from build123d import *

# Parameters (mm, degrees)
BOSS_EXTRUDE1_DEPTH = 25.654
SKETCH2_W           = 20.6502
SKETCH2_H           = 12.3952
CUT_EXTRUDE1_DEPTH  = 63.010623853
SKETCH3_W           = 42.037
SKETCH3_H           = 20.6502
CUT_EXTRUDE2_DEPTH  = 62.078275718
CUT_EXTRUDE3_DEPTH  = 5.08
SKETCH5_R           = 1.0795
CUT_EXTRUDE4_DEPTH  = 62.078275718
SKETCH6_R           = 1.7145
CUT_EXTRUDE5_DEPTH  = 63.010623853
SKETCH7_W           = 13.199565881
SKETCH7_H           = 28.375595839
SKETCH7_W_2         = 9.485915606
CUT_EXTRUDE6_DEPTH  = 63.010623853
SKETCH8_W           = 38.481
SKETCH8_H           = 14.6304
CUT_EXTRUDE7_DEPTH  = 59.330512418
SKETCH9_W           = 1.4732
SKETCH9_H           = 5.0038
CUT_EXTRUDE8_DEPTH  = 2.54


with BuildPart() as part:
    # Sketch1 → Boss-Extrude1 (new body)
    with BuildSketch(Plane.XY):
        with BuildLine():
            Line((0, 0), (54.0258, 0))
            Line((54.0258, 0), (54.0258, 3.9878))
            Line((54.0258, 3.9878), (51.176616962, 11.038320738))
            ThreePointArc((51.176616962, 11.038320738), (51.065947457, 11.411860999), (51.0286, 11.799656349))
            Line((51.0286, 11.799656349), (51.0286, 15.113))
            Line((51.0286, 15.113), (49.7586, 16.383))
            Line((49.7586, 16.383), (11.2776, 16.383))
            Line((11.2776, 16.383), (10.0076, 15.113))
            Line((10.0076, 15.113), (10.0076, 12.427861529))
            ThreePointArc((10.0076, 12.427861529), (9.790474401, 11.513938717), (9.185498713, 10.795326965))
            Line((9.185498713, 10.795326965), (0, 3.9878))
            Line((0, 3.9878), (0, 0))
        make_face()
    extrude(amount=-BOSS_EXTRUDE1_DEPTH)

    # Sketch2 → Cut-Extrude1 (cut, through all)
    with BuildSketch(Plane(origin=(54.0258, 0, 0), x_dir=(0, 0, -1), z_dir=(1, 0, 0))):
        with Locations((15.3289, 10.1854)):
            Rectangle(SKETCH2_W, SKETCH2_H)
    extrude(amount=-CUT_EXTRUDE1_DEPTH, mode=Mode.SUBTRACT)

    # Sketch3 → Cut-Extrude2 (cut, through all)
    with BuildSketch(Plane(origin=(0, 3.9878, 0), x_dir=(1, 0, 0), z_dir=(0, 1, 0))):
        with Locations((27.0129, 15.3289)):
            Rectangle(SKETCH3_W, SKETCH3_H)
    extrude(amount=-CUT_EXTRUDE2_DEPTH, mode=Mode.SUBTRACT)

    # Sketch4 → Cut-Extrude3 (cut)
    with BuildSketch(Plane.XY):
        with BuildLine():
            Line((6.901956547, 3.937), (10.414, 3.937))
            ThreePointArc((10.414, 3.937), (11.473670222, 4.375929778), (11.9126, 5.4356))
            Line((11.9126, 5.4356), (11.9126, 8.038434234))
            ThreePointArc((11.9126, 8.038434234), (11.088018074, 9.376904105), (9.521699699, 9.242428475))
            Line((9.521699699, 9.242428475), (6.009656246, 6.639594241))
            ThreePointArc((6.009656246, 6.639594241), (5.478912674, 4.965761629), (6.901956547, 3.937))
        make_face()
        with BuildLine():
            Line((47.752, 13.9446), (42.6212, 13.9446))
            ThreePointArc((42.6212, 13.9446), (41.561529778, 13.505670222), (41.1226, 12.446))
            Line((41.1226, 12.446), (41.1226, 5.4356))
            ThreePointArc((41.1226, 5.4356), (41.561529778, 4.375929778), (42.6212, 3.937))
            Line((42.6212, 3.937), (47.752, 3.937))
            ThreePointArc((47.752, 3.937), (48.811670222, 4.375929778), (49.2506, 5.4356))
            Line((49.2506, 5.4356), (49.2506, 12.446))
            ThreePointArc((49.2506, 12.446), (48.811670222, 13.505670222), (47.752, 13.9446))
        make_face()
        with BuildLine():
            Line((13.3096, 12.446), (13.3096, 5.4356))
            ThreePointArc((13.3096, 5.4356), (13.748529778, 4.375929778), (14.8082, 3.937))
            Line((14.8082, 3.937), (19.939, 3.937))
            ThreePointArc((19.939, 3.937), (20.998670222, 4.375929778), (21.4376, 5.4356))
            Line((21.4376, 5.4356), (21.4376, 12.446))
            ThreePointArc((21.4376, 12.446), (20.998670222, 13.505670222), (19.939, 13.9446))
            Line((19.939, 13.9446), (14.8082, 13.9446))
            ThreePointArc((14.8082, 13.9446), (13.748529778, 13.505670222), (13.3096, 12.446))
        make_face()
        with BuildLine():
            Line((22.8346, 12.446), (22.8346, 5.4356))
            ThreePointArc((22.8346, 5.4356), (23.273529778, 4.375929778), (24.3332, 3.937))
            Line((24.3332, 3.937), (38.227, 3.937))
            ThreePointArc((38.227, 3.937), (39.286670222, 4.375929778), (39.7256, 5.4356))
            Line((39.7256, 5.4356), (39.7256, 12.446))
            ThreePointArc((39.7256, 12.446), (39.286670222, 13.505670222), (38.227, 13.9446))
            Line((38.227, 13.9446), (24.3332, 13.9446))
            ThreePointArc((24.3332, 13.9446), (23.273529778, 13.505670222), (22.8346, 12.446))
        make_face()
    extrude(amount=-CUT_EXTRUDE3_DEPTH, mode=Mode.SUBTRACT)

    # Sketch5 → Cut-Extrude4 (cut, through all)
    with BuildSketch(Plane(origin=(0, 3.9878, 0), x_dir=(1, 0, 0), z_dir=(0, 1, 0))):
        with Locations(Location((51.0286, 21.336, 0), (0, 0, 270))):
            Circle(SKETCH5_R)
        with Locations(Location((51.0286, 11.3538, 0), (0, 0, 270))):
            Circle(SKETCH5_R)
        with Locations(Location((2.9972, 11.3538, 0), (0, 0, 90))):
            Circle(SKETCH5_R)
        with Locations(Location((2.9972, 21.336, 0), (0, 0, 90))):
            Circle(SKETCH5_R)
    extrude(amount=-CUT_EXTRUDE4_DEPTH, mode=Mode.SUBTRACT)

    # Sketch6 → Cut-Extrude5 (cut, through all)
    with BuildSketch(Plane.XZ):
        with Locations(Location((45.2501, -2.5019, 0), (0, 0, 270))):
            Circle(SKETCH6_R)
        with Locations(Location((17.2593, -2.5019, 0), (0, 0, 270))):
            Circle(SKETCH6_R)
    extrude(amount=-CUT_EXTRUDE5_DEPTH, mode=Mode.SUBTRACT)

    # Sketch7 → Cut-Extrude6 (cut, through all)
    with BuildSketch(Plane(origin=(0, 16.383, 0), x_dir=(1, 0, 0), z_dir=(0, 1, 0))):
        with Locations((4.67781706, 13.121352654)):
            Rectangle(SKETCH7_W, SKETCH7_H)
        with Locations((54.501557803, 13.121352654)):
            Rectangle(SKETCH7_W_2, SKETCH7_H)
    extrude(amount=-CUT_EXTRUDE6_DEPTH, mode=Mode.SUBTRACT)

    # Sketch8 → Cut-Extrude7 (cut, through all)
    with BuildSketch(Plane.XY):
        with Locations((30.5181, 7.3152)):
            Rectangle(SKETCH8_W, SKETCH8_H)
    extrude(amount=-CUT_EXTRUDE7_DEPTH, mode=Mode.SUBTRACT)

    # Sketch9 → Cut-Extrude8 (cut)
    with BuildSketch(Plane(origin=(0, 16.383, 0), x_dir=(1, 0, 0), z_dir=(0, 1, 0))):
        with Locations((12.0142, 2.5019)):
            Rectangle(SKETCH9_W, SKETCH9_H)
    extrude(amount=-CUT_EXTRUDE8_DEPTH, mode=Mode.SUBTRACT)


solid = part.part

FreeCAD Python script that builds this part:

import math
import FreeCAD as App
import Part
import Sketcher
Q = App.Units.Quantity

doc = App.newDocument("Part")
body = doc.addObject("PartDesign::Body", "Body")

# Sketch on XY plane
sketch1 = body.newObject("Sketcher::SketchObject", "Sketch")
sketch1.AttachmentSupport = (doc.getObject("XY_Plane"), [""])
sketch1.MapMode = "FlatFace"
sketch1.addGeometry(Part.LineSegment(App.Vector(0, 0, 0), App.Vector(54, 0, 0)), False)
sketch1.addGeometry(Part.LineSegment(App.Vector(54, 0, 0), App.Vector(54, 4, 0)), False)
sketch1.addGeometry(Part.LineSegment(App.Vector(54, 4, 0), App.Vector(51.2, 11, 0)), False)
sketch1.addGeometry(Part.ArcOfCircle(Part.Circle(App.Vector(53.1, 11.8, 0), App.Vector(0, 0, 1), 2), math.radians(180), math.radians(202)), False)
sketch1.addGeometry(Part.LineSegment(App.Vector(51, 11.8, 0), App.Vector(51, 15.1, 0)), False)
sketch1.addGeometry(Part.LineSegment(App.Vector(51, 15.1, 0), App.Vector(49.8, 16.4, 0)), False)
sketch1.addGeometry(Part.LineSegment(App.Vector(49.8, 16.4, 0), App.Vector(11.3, 16.4, 0)), False)
sketch1.addGeometry(Part.LineSegment(App.Vector(11.3, 16.4, 0), App.Vector(10, 15.1, 0)), False)
sketch1.addGeometry(Part.LineSegment(App.Vector(10, 15.1, 0), App.Vector(10, 12.4, 0)), False)
sketch1.addGeometry(Part.ArcOfCircle(Part.Circle(App.Vector(8, 12.4, 0), App.Vector(0, 0, 1), 2), math.radians(-53), math.radians(0)), False)
sketch1.addGeometry(Part.LineSegment(App.Vector(9.2, 10.8, 0), App.Vector(0, 4, 0)), False)
sketch1.addGeometry(Part.LineSegment(App.Vector(0, 4, 0), App.Vector(0, 0, 0)), False)
sketch1.addConstraint(Sketcher.Constraint("Coincident", 0, 2, 1, 1))
sketch1.addConstraint(Sketcher.Constraint("Coincident", 1, 2, 2, 1))
sketch1.addConstraint(Sketcher.Constraint("Tangent", 2, 2, 3, 2))
sketch1.addConstraint(Sketcher.Constraint("Tangent", 3, 1, 4, 1))
sketch1.addConstraint(Sketcher.Constraint("Coincident", 4, 2, 5, 1))
sketch1.addConstraint(Sketcher.Constraint("Coincident", 5, 2, 6, 1))
sketch1.addConstraint(Sketcher.Constraint("Coincident", 6, 2, 7, 1))
sketch1.addConstraint(Sketcher.Constraint("Coincident", 7, 2, 8, 1))
sketch1.addConstraint(Sketcher.Constraint("Tangent", 8, 2, 9, 2))
sketch1.addConstraint(Sketcher.Constraint("Tangent", 9, 1, 10, 1))
sketch1.addConstraint(Sketcher.Constraint("Coincident", 10, 2, 11, 1))
sketch1.addConstraint(Sketcher.Constraint("Coincident", 11, 2, 0, 1))
sketch1.addConstraint(Sketcher.Constraint("Horizontal", 0))
sketch1.addConstraint(Sketcher.Constraint("Vertical", 1))
sketch1.addConstraint(Sketcher.Constraint("Vertical", 4))
sketch1.addConstraint(Sketcher.Constraint("Horizontal", 6))
sketch1.addConstraint(Sketcher.Constraint("Vertical", 8))
sketch1.addConstraint(Sketcher.Constraint("Vertical", 11))
sketch1.addConstraint(Sketcher.Constraint("Coincident", 11, 2, -1, 1))
sketch1.addConstraint(Sketcher.Constraint("Equal", 3, 9))
sketch1.addConstraint(Sketcher.Constraint("Perpendicular", 5, 7))
sketch1.addConstraint(Sketcher.Constraint("Horizontal", 4, 2, 7, 2))
sketch1.addConstraint(Sketcher.Constraint("Horizontal", 1, 2, 10, 2))
sketch1.addConstraint(Sketcher.Constraint("Equal", 5, 7))
sketch1.addConstraint(Sketcher.Constraint("Radius", 3, Q("0.08 in")))
sketch1.addConstraint(Sketcher.Constraint("DistanceX", 0, 1, 0, 2, Q("2.127 in")))
sketch1.addConstraint(Sketcher.Constraint("DistanceX", 6, 2, 6, 1, Q("1.515 in")))
sketch1.addConstraint(Sketcher.Constraint("DistanceY", 1, 1, 1, 2, Q("0.157 in")))
sketch1.addConstraint(Sketcher.Constraint("DistanceX", 5, 2, 4, 2, Q("0.05 in")))
sketch1.addConstraint(Sketcher.Constraint("DistanceX", -1, 1, 3, 3, Q("2.089 in")))
sketch1.addConstraint(Sketcher.Constraint("DistanceY", -1, 1, 4, 2, Q("0.595 in")))
sketch1.addConstraint(Sketcher.Constraint("Distance", 10, Q("11.433102 mm")))
sketch1.addConstraint(Sketcher.Constraint("Distance", 2, Q("7.604452 mm")))
pad1 = body.newObject("PartDesign::Pad", "Pad")
pad1.Profile = sketch1
pad1.Length = Q("1.01 in")
pad1.Reversed = True

# Sketch on YZ plane
sketch2 = body.newObject("Sketcher::SketchObject", "Sketch001")
sketch2.AttachmentSupport = (doc.getObject("YZ_Plane"), [""])
sketch2.MapMode = "FlatFace"
sketch2.AttachmentOffset = App.Placement(App.Vector(0, 0, 2.127 * 25.4), App.Rotation())
sketch2.addGeometry(Part.LineSegment(App.Vector(16, -5, 0), App.Vector(4, -5, 0)), False)
sketch2.addGeometry(Part.LineSegment(App.Vector(4, -5, 0), App.Vector(4, -26, 0)), False)
sketch2.addGeometry(Part.LineSegment(App.Vector(4, -26, 0), App.Vector(16, -26, 0)), False)
sketch2.addGeometry(Part.LineSegment(App.Vector(16, -26, 0), App.Vector(16, -5, 0)), False)
sketch2.addConstraint(Sketcher.Constraint("Coincident", 0, 2, 1, 1))
sketch2.addConstraint(Sketcher.Constraint("Coincident", 1, 2, 2, 1))
sketch2.addConstraint(Sketcher.Constraint("Coincident", 2, 2, 3, 1))
sketch2.addConstraint(Sketcher.Constraint("Coincident", 3, 2, 0, 1))
sketch2.addConstraint(Sketcher.Constraint("Horizontal", 0))
sketch2.addConstraint(Sketcher.Constraint("Vertical", 1))
sketch2.addConstraint(Sketcher.Constraint("Horizontal", 2))
sketch2.addConstraint(Sketcher.Constraint("Vertical", 3))
sketch2.addConstraint(Sketcher.Constraint("DistanceX", 0, 2, 0, 1, Q("0.488 in")))
sketch2.addConstraint(Sketcher.Constraint("DistanceY", 1, 2, 1, 1, Q("0.813 in")))
sketch2.addConstraint(Sketcher.Constraint("DistanceY", 1, 2, -1, 1, Q("1.01 in")))
sketch2.addConstraint(Sketcher.Constraint("DistanceX", -1, 1, 0, 2, Q("0.157 in")))
pocket1 = body.newObject("PartDesign::Pocket", "Pocket")
pocket1.Profile = sketch2
pocket1.Type = "ThroughAll"

# Sketch on XZ plane
sketch3 = body.newObject("Sketcher::SketchObject", "Sketch002")
sketch3.AttachmentSupport = (doc.getObject("XZ_Plane"), [""])
sketch3.MapMode = "FlatFace"
sketch3.AttachmentOffset = App.Placement(App.Vector(0, 0, -0.157 * 25.4), App.Rotation())
sketch3.addGeometry(Part.LineSegment(App.Vector(6, -26, 0), App.Vector(6, -5, 0)), False)
sketch3.addGeometry(Part.LineSegment(App.Vector(6, -5, 0), App.Vector(48, -5, 0)), False)
sketch3.addGeometry(Part.LineSegment(App.Vector(48, -5, 0), App.Vector(48, -26, 0)), False)
sketch3.addGeometry(Part.LineSegment(App.Vector(48, -26, 0), App.Vector(6, -26, 0)), False)
sketch3.addConstraint(Sketcher.Constraint("Coincident", 0, 2, 1, 1))
sketch3.addConstraint(Sketcher.Constraint("Coincident", 1, 2, 2, 1))
sketch3.addConstraint(Sketcher.Constraint("Coincident", 2, 2, 3, 1))
sketch3.addConstraint(Sketcher.Constraint("Coincident", 3, 2, 0, 1))
sketch3.addConstraint(Sketcher.Constraint("Vertical", 0))
sketch3.addConstraint(Sketcher.Constraint("Horizontal", 1))
sketch3.addConstraint(Sketcher.Constraint("Vertical", 2))
sketch3.addConstraint(Sketcher.Constraint("Horizontal", 3))
sketch3.addConstraint(Sketcher.Constraint("DistanceX", 1, 1, 1, 2, Q("1.655 in")))
sketch3.addConstraint(Sketcher.Constraint("DistanceY", 0, 1, 0, 2, Q("0.813 in")))
sketch3.addConstraint(Sketcher.Constraint("DistanceY", 2, 2, -1, 1, Q("1.01 in")))
sketch3.addConstraint(Sketcher.Constraint("DistanceX", -1, 1, 0, 2, Q("0.236 in")))
pocket2 = body.newObject("PartDesign::Pocket", "Pocket001")
pocket2.Profile = sketch3
pocket2.Type = "ThroughAll"
pocket2.Reversed = True

# Sketch on XY plane
sketch4 = body.newObject("Sketcher::SketchObject", "Sketch003")
sketch4.AttachmentSupport = (doc.getObject("XY_Plane"), [""])
sketch4.MapMode = "FlatFace"
sketch4.addGeometry(Part.LineSegment(App.Vector(6.9, 3.9, 0), App.Vector(10.4, 3.9, 0)), False)
sketch4.addGeometry(Part.ArcOfCircle(Part.Circle(App.Vector(10.4, 5.4, 0), App.Vector(0, 0, 1), 1.5), math.radians(-90), math.radians(0)), False)
sketch4.addGeometry(Part.LineSegment(App.Vector(11.9, 5.4, 0), App.Vector(11.9, 8, 0)), False)
sketch4.addGeometry(Part.ArcOfCircle(Part.Circle(App.Vector(10.4, 8, 0), App.Vector(0, 0, 1), 1.5), math.radians(0), math.radians(127)), False)
sketch4.addGeometry(Part.LineSegment(App.Vector(9.5, 9.2, 0), App.Vector(6, 6.6, 0)), False)
sketch4.addGeometry(Part.ArcOfCircle(Part.Circle(App.Vector(6.9, 5.4, 0), App.Vector(0, 0, 1), 1.5), math.radians(127), math.radians(270)), False)
sketch4.addGeometry(Part.LineSegment(App.Vector(47.8, 13.9, 0), App.Vector(42.6, 13.9, 0)), False)
sketch4.addGeometry(Part.ArcOfCircle(Part.Circle(App.Vector(42.6, 12.4, 0), App.Vector(0, 0, 1), 1.5), math.radians(90), math.radians(180)), False)
sketch4.addGeometry(Part.LineSegment(App.Vector(41.1, 12.4, 0), App.Vector(41.1, 5.4, 0)), False)
sketch4.addGeometry(Part.ArcOfCircle(Part.Circle(App.Vector(42.6, 5.4, 0), App.Vector(0, 0, 1), 1.5), math.radians(-180), math.radians(-90)), False)
sketch4.addGeometry(Part.LineSegment(App.Vector(42.6, 3.9, 0), App.Vector(47.8, 3.9, 0)), False)
sketch4.addGeometry(Part.ArcOfCircle(Part.Circle(App.Vector(47.8, 5.4, 0), App.Vector(0, 0, 1), 1.5), math.radians(-90), math.radians(0)), False)
sketch4.addGeometry(Part.LineSegment(App.Vector(49.3, 5.4, 0), App.Vector(49.3, 12.4, 0)), False)
sketch4.addGeometry(Part.ArcOfCircle(Part.Circle(App.Vector(47.8, 12.4, 0), App.Vector(0, 0, 1), 1.5), math.radians(0), math.radians(90)), False)
sketch4.addGeometry(Part.LineSegment(App.Vector(13.3, 12.4, 0), App.Vector(13.3, 5.4, 0)), False)
sketch4.addGeometry(Part.ArcOfCircle(Part.Circle(App.Vector(14.8, 5.4, 0), App.Vector(0, 0, 1), 1.5), math.radians(-180), math.radians(-90)), False)
sketch4.addGeometry(Part.LineSegment(App.Vector(14.8, 3.9, 0), App.Vector(19.9, 3.9, 0)), False)
sketch4.addGeometry(Part.ArcOfCircle(Part.Circle(App.Vector(19.9, 5.4, 0), App.Vector(0, 0, 1), 1.5), math.radians(-90), math.radians(0)), False)
sketch4.addGeometry(Part.LineSegment(App.Vector(21.4, 5.4, 0), App.Vector(21.4, 12.4, 0)), False)
sketch4.addGeometry(Part.ArcOfCircle(Part.Circle(App.Vector(19.9, 12.4, 0), App.Vector(0, 0, 1), 1.5), math.radians(0), math.radians(90)), False)
sketch4.addGeometry(Part.LineSegment(App.Vector(19.9, 13.9, 0), App.Vector(14.8, 13.9, 0)), False)
sketch4.addGeometry(Part.ArcOfCircle(Part.Circle(App.Vector(14.8, 12.4, 0), App.Vector(0, 0, 1), 1.5), math.radians(90), math.radians(180)), False)
sketch4.addGeometry(Part.LineSegment(App.Vector(22.8, 12.4, 0), App.Vector(22.8, 5.4, 0)), False)
sketch4.addGeometry(Part.ArcOfCircle(Part.Circle(App.Vector(24.3, 5.4, 0), App.Vector(0, 0, 1), 1.5), math.radians(-180), math.radians(-90)), False)
sketch4.addGeometry(Part.LineSegment(App.Vector(24.3, 3.9, 0), App.Vector(38.2, 3.9, 0)), False)
sketch4.addGeometry(Part.ArcOfCircle(Part.Circle(App.Vector(38.2, 5.4, 0), App.Vector(0, 0, 1), 1.5), math.radians(-90), math.radians(0)), False)
sketch4.addGeometry(Part.LineSegment(App.Vector(39.7, 5.4, 0), App.Vector(39.7, 12.4, 0)), False)
sketch4.addGeometry(Part.ArcOfCircle(Part.Circle(App.Vector(38.2, 12.4, 0), App.Vector(0, 0, 1), 1.5), math.radians(0), math.radians(90)), False)
sketch4.addGeometry(Part.LineSegment(App.Vector(38.2, 13.9, 0), App.Vector(24.3, 13.9, 0)), False)
sketch4.addGeometry(Part.ArcOfCircle(Part.Circle(App.Vector(24.3, 12.4, 0), App.Vector(0, 0, 1), 1.5), math.radians(90), math.radians(180)), False)
sketch4.addConstraint(Sketcher.Constraint("Tangent", 0, 2, 1, 1))
sketch4.addConstraint(Sketcher.Constraint("Tangent", 1, 2, 2, 1))
sketch4.addConstraint(Sketcher.Constraint("Tangent", 2, 2, 3, 1))
sketch4.addConstraint(Sketcher.Constraint("Tangent", 3, 2, 4, 1))
sketch4.addConstraint(Sketcher.Constraint("Tangent", 4, 2, 5, 1))
sketch4.addConstraint(Sketcher.Constraint("Tangent", 5, 2, 0, 1))
sketch4.addConstraint(Sketcher.Constraint("Tangent", 6, 2, 7, 1))
sketch4.addConstraint(Sketcher.Constraint("Tangent", 7, 2, 8, 1))
sketch4.addConstraint(Sketcher.Constraint("Tangent", 8, 2, 9, 1))
sketch4.addConstraint(Sketcher.Constraint("Tangent", 9, 2, 10, 1))
sketch4.addConstraint(Sketcher.Constraint("Tangent", 10, 2, 11, 1))
sketch4.addConstraint(Sketcher.Constraint("Tangent", 11, 2, 12, 1))
sketch4.addConstraint(Sketcher.Constraint("Tangent", 12, 2, 13, 1))
sketch4.addConstraint(Sketcher.Constraint("Tangent", 13, 2, 6, 1))
sketch4.addConstraint(Sketcher.Constraint("Tangent", 14, 2, 15, 1))
sketch4.addConstraint(Sketcher.Constraint("Tangent", 15, 2, 16, 1))
sketch4.addConstraint(Sketcher.Constraint("Tangent", 16, 2, 17, 1))
sketch4.addConstraint(Sketcher.Constraint("Tangent", 17, 2, 18, 1))
sketch4.addConstraint(Sketcher.Constraint("Tangent", 18, 2, 19, 1))
sketch4.addConstraint(Sketcher.Constraint("Tangent", 19, 2, 20, 1))
sketch4.addConstraint(Sketcher.Constraint("Tangent", 20, 2, 21, 1))
sketch4.addConstraint(Sketcher.Constraint("Tangent", 21, 2, 14, 1))
sketch4.addConstraint(Sketcher.Constraint("Tangent", 22, 2, 23, 1))
sketch4.addConstraint(Sketcher.Constraint("Tangent", 23, 2, 24, 1))
sketch4.addConstraint(Sketcher.Constraint("Tangent", 24, 2, 25, 1))
sketch4.addConstraint(Sketcher.Constraint("Tangent", 25, 2, 26, 1))
sketch4.addConstraint(Sketcher.Constraint("Tangent", 26, 2, 27, 1))
sketch4.addConstraint(Sketcher.Constraint("Tangent", 27, 2, 28, 1))
sketch4.addConstraint(Sketcher.Constraint("Tangent", 28, 2, 29, 1))
sketch4.addConstraint(Sketcher.Constraint("Tangent", 29, 2, 22, 1))
sketch4.addConstraint(Sketcher.Constraint("Horizontal", 0))
sketch4.addConstraint(Sketcher.Constraint("Vertical", 2))
sketch4.addConstraint(Sketcher.Constraint("Horizontal", 6))
sketch4.addConstraint(Sketcher.Constraint("Vertical", 8))
sketch4.addConstraint(Sketcher.Constraint("Horizontal", 10))
sketch4.addConstraint(Sketcher.Constraint("Vertical", 12))
sketch4.addConstraint(Sketcher.Constraint("Vertical", 14))
sketch4.addConstraint(Sketcher.Constraint("Horizontal", 16))
sketch4.addConstraint(Sketcher.Constraint("Vertical", 18))
sketch4.addConstraint(Sketcher.Constraint("Horizontal", 20))
sketch4.addConstraint(Sketcher.Constraint("Vertical", 22))
sketch4.addConstraint(Sketcher.Constraint("Horizontal", 24))
sketch4.addConstraint(Sketcher.Constraint("Vertical", 26))
sketch4.addConstraint(Sketcher.Constraint("Horizontal", 28))
sketch4.addConstraint(Sketcher.Constraint("Equal", 1, 3))
sketch4.addConstraint(Sketcher.Constraint("Equal", 3, 5))
sketch4.addConstraint(Sketcher.Constraint("Equal", 5, 7))
sketch4.addConstraint(Sketcher.Constraint("Equal", 7, 9))
sketch4.addConstraint(Sketcher.Constraint("Equal", 9, 11))
sketch4.addConstraint(Sketcher.Constraint("Equal", 11, 13))
sketch4.addConstraint(Sketcher.Constraint("Equal", 13, 15))
sketch4.addConstraint(Sketcher.Constraint("Equal", 15, 17))
sketch4.addConstraint(Sketcher.Constraint("Equal", 17, 19))
sketch4.addConstraint(Sketcher.Constraint("Equal", 19, 21))
sketch4.addConstraint(Sketcher.Constraint("Equal", 21, 23))
sketch4.addConstraint(Sketcher.Constraint("Equal", 23, 25))
sketch4.addConstraint(Sketcher.Constraint("Equal", 25, 27))
sketch4.addConstraint(Sketcher.Constraint("Equal", 27, 29))
sketch4.addConstraint(Sketcher.Constraint("Horizontal", 5, 3, 9, 3))
sketch4.addConstraint(Sketcher.Constraint("Horizontal", 11, 3, 15, 3))
sketch4.addConstraint(Sketcher.Constraint("Horizontal", 13, 3, 19, 3))
sketch4.addConstraint(Sketcher.Constraint("Horizontal", 17, 3, 23, 3))
sketch4.addConstraint(Sketcher.Constraint("Horizontal", 21, 3, 27, 3))
sketch4.addConstraint(Sketcher.Constraint("Equal", 10, 16))
sketch4.addConstraint(Sketcher.Constraint("Radius", 1, Q("0.059 in")))
sketch4.addConstraint(Sketcher.Constraint("DistanceX", 6, 2, 6, 1, Q("0.202 in")))
sketch4.addConstraint(Sketcher.Constraint("DistanceX", 24, 1, 24, 2, Q("0.547 in")))
sketch4.addConstraint(Sketcher.Constraint("DistanceY", 8, 2, 8, 1, Q("0.276 in")))
sketch4.addConstraint(Sketcher.Constraint("DistanceX", -1, 1, 1, 3, Q("0.41 in")))
sketch4.addConstraint(Sketcher.Constraint("DistanceY", -1, 1, 7, 3, Q("0.49 in")))
sketch4.addConstraint(Sketcher.Constraint("DistanceX", -1, 1, 11, 3, Q("1.88 in")))
sketch4.addConstraint(Sketcher.Constraint("DistanceX", -1, 1, 15, 3, Q("0.583 in")))
sketch4.addConstraint(Sketcher.Constraint("DistanceX", -1, 1, 23, 3, Q("0.958 in")))
sketch4.addConstraint(Sketcher.Constraint("DistanceX", -1, 1, 3, 2, Q("9.5217 mm")))
sketch4.addConstraint(Sketcher.Constraint("DistanceX", 0, 1, 0, 2, Q("3.512043 mm")))
pocket3 = body.newObject("PartDesign::Pocket", "Pocket002")
pocket3.Profile = sketch4
pocket3.Length = Q("0.2 in")

# Sketch on XZ plane
sketch5 = body.newObject("Sketcher::SketchObject", "Sketch004")
sketch5.AttachmentSupport = (doc.getObject("XZ_Plane"), [""])
sketch5.MapMode = "FlatFace"
sketch5.AttachmentOffset = App.Placement(App.Vector(0, 0, -0.157 * 25.4), App.Rotation())
sketch5.addGeometry(Part.Circle(App.Vector(51, -21.3, 0), App.Vector(0, 0, 1), 1.1), False)
sketch5.addGeometry(Part.Circle(App.Vector(51, -11.4, 0), App.Vector(0, 0, 1), 1.1), False)
sketch5.addGeometry(Part.Circle(App.Vector(3, -11.4, 0), App.Vector(0, 0, 1), 1.1), False)
sketch5.addGeometry(Part.Circle(App.Vector(3, -21.3, 0), App.Vector(0, 0, 1), 1.1), False)
sketch5.addConstraint(Sketcher.Constraint("Equal", 0, 1))
sketch5.addConstraint(Sketcher.Constraint("Equal", 1, 2))
sketch5.addConstraint(Sketcher.Constraint("Equal", 2, 3))
sketch5.addConstraint(Sketcher.Constraint("Horizontal", 1, 3, 2, 3))
sketch5.addConstraint(Sketcher.Constraint("Horizontal", 0, 3, 3, 3))
sketch5.addConstraint(Sketcher.Constraint("Vertical", 0, 3, 1, 3))
sketch5.addConstraint(Sketcher.Constraint("Vertical", 2, 3, 3, 3))
sketch5.addConstraint(Sketcher.Constraint("Diameter", 0, Q("0.085 in")))
sketch5.addConstraint(Sketcher.Constraint("DistanceY", 0, 3, -1, 1, Q("0.84 in")))
sketch5.addConstraint(Sketcher.Constraint("DistanceX", -1, 1, 0, 3, Q("2.009 in")))
sketch5.addConstraint(Sketcher.Constraint("DistanceY", 1, 3, -1, 1, Q("0.447 in")))
sketch5.addConstraint(Sketcher.Constraint("DistanceX", -1, 1, 2, 3, Q("0.118 in")))
pocket4 = body.newObject("PartDesign::Pocket", "Pocket003")
pocket4.Profile = sketch5
pocket4.Type = "ThroughAll"
pocket4.Reversed = True

# Sketch on XZ plane
sketch6 = body.newObject("Sketcher::SketchObject", "Sketch005")
sketch6.AttachmentSupport = (doc.getObject("XZ_Plane"), [""])
sketch6.MapMode = "FlatFace"
sketch6.addGeometry(Part.Circle(App.Vector(45.3, -2.5, 0), App.Vector(0, 0, 1), 1.7), False)
sketch6.addGeometry(Part.Circle(App.Vector(17.3, -2.5, 0), App.Vector(0, 0, 1), 1.7), False)
sketch6.addConstraint(Sketcher.Constraint("Equal", 0, 1))
sketch6.addConstraint(Sketcher.Constraint("Horizontal", 0, 3, 1, 3))
sketch6.addConstraint(Sketcher.Constraint("Diameter", 0, Q("0.135 in")))
sketch6.addConstraint(Sketcher.Constraint("DistanceX", 1, 3, 0, 3, Q("1.102 in")))
sketch6.addConstraint(Sketcher.Constraint("DistanceX", -1, 1, 0, 3, Q("1.7815 in")))
sketch6.addConstraint(Sketcher.Constraint("DistanceY", 0, 3, -1, 1, Q("0.0985 in")))
pocket5 = body.newObject("PartDesign::Pocket", "Pocket004")
pocket5.Profile = sketch6
pocket5.Type = "ThroughAll"

# Sketch on XZ plane
sketch7 = body.newObject("Sketcher::SketchObject", "Sketch006")
sketch7.AttachmentSupport = (doc.getObject("XZ_Plane"), [""])
sketch7.MapMode = "FlatFace"
sketch7.AttachmentOffset = App.Placement(App.Vector(0, 0, -0.645 * 25.4), App.Rotation())
sketch7.addGeometry(Part.LineSegment(App.Vector(-2, -27, 0), App.Vector(-2, 1, 0)), False)
sketch7.addGeometry(Part.LineSegment(App.Vector(-2, 1, 0), App.Vector(11, 1, 0)), False)
sketch7.addGeometry(Part.LineSegment(App.Vector(11, 1, 0), App.Vector(11, -27, 0)), False)
sketch7.addGeometry(Part.LineSegment(App.Vector(11, -27, 0), App.Vector(-2, -27, 0)), False)
sketch7.addGeometry(Part.LineSegment(App.Vector(50, -27, 0), App.Vector(50, 1, 0)), False)
sketch7.addGeometry(Part.LineSegment(App.Vector(50, 1, 0), App.Vector(59, 1, 0)), False)
sketch7.addGeometry(Part.LineSegment(App.Vector(59, 1, 0), App.Vector(59, -27, 0)), False)
sketch7.addGeometry(Part.LineSegment(App.Vector(59, -27, 0), App.Vector(50, -27, 0)), False)
sketch7.addConstraint(Sketcher.Constraint("Coincident", 0, 2, 1, 1))
sketch7.addConstraint(Sketcher.Constraint("Coincident", 1, 2, 2, 1))
sketch7.addConstraint(Sketcher.Constraint("Coincident", 2, 2, 3, 1))
sketch7.addConstraint(Sketcher.Constraint("Coincident", 3, 2, 0, 1))
sketch7.addConstraint(Sketcher.Constraint("Coincident", 4, 2, 5, 1))
sketch7.addConstraint(Sketcher.Constraint("Coincident", 5, 2, 6, 1))
sketch7.addConstraint(Sketcher.Constraint("Coincident", 6, 2, 7, 1))
sketch7.addConstraint(Sketcher.Constraint("Coincident", 7, 2, 4, 1))
sketch7.addConstraint(Sketcher.Constraint("Vertical", 0))
sketch7.addConstraint(Sketcher.Constraint("Horizontal", 1))
sketch7.addConstraint(Sketcher.Constraint("Vertical", 2))
sketch7.addConstraint(Sketcher.Constraint("Horizontal", 3))
sketch7.addConstraint(Sketcher.Constraint("Vertical", 4))
sketch7.addConstraint(Sketcher.Constraint("Horizontal", 5))
sketch7.addConstraint(Sketcher.Constraint("Vertical", 6))
sketch7.addConstraint(Sketcher.Constraint("Horizontal", 7))
sketch7.addConstraint(Sketcher.Constraint("Horizontal", 1, 2, 4, 2))
sketch7.addConstraint(Sketcher.Constraint("Horizontal", 3, 2, 6, 2))
sketch7.addConstraint(Sketcher.Constraint("DistanceX", -1, 1, 1, 2, Q("0.444 in")))
sketch7.addConstraint(Sketcher.Constraint("DistanceX", -1, 1, 4, 2, Q("1.959 in")))
sketch7.addConstraint(Sketcher.Constraint("DistanceX", 1, 1, 1, 2, Q("13.199566 mm")))
sketch7.addConstraint(Sketcher.Constraint("DistanceX", 5, 1, 5, 2, Q("9.485916 mm")))
sketch7.addConstraint(Sketcher.Constraint("DistanceY", 0, 1, 0, 2, Q("28.375596 mm")))
sketch7.addConstraint(Sketcher.Constraint("DistanceY", 2, 2, -1, 1, Q("27.309151 mm")))
pocket6 = body.newObject("PartDesign::Pocket", "Pocket005")
pocket6.Profile = sketch7
pocket6.Type = "ThroughAll"
pocket6.Reversed = True

# Sketch on XY plane
sketch8 = body.newObject("Sketcher::SketchObject", "Sketch007")
sketch8.AttachmentSupport = (doc.getObject("XY_Plane"), [""])
sketch8.MapMode = "FlatFace"
sketch8.addGeometry(Part.LineSegment(App.Vector(11, 15, 0), App.Vector(11, 0, 0)), False)
sketch8.addGeometry(Part.LineSegment(App.Vector(11, 0, 0), App.Vector(50, 0, 0)), False)
sketch8.addGeometry(Part.LineSegment(App.Vector(50, 0, 0), App.Vector(50, 15, 0)), False)
sketch8.addGeometry(Part.LineSegment(App.Vector(50, 15, 0), App.Vector(11, 15, 0)), False)
sketch8.addConstraint(Sketcher.Constraint("Coincident", 0, 2, 1, 1))
sketch8.addConstraint(Sketcher.Constraint("Coincident", 1, 2, 2, 1))
sketch8.addConstraint(Sketcher.Constraint("Coincident", 2, 2, 3, 1))
sketch8.addConstraint(Sketcher.Constraint("Coincident", 3, 2, 0, 1))
sketch8.addConstraint(Sketcher.Constraint("Vertical", 0))
sketch8.addConstraint(Sketcher.Constraint("Horizontal", 1))
sketch8.addConstraint(Sketcher.Constraint("Vertical", 2))
sketch8.addConstraint(Sketcher.Constraint("Horizontal", 3))
sketch8.addConstraint(Sketcher.Constraint("PointOnObject", 0, 2, -1))
sketch8.addConstraint(Sketcher.Constraint("DistanceX", 1, 1, 1, 2, Q("1.515 in")))
sketch8.addConstraint(Sketcher.Constraint("DistanceY", 0, 2, 0, 1, Q("0.576 in")))
sketch8.addConstraint(Sketcher.Constraint("DistanceX", -1, 1, 0, 2, Q("0.444 in")))
pocket7 = body.newObject("PartDesign::Pocket", "Pocket006")
pocket7.Profile = sketch8
pocket7.Type = "ThroughAll"

# Sketch on XZ plane
sketch9 = body.newObject("Sketcher::SketchObject", "Sketch008")
sketch9.AttachmentSupport = (doc.getObject("XZ_Plane"), [""])
sketch9.MapMode = "FlatFace"
sketch9.AttachmentOffset = App.Placement(App.Vector(0, 0, -0.645 * 25.4), App.Rotation())
sketch9.addGeometry(Part.LineSegment(App.Vector(11.3, -5, 0), App.Vector(11.3, 0, 0)), False)
sketch9.addGeometry(Part.LineSegment(App.Vector(11.3, 0, 0), App.Vector(12.8, 0, 0)), False)
sketch9.addGeometry(Part.LineSegment(App.Vector(12.8, 0, 0), App.Vector(12.8, -5, 0)), False)
sketch9.addGeometry(Part.LineSegment(App.Vector(12.8, -5, 0), App.Vector(11.3, -5, 0)), False)
sketch9.addConstraint(Sketcher.Constraint("Coincident", 0, 2, 1, 1))
sketch9.addConstraint(Sketcher.Constraint("Coincident", 1, 2, 2, 1))
sketch9.addConstraint(Sketcher.Constraint("Coincident", 2, 2, 3, 1))
sketch9.addConstraint(Sketcher.Constraint("Coincident", 3, 2, 0, 1))
sketch9.addConstraint(Sketcher.Constraint("Vertical", 0))
sketch9.addConstraint(Sketcher.Constraint("Horizontal", 1))
sketch9.addConstraint(Sketcher.Constraint("Vertical", 2))
sketch9.addConstraint(Sketcher.Constraint("Horizontal", 3))
sketch9.addConstraint(Sketcher.Constraint("PointOnObject", 0, 2, -1))
sketch9.addConstraint(Sketcher.Constraint("DistanceX", 1, 1, 1, 2, Q("0.058 in")))
sketch9.addConstraint(Sketcher.Constraint("DistanceY", 0, 1, 0, 2, Q("0.197 in")))
sketch9.addConstraint(Sketcher.Constraint("DistanceX", -1, 1, 0, 2, Q("0.444 in")))
pocket8 = body.newObject("PartDesign::Pocket", "Pocket007")
pocket8.Profile = sketch9
pocket8.Length = Q("0.1 in")
pocket8.Reversed = True

doc.recompute()
